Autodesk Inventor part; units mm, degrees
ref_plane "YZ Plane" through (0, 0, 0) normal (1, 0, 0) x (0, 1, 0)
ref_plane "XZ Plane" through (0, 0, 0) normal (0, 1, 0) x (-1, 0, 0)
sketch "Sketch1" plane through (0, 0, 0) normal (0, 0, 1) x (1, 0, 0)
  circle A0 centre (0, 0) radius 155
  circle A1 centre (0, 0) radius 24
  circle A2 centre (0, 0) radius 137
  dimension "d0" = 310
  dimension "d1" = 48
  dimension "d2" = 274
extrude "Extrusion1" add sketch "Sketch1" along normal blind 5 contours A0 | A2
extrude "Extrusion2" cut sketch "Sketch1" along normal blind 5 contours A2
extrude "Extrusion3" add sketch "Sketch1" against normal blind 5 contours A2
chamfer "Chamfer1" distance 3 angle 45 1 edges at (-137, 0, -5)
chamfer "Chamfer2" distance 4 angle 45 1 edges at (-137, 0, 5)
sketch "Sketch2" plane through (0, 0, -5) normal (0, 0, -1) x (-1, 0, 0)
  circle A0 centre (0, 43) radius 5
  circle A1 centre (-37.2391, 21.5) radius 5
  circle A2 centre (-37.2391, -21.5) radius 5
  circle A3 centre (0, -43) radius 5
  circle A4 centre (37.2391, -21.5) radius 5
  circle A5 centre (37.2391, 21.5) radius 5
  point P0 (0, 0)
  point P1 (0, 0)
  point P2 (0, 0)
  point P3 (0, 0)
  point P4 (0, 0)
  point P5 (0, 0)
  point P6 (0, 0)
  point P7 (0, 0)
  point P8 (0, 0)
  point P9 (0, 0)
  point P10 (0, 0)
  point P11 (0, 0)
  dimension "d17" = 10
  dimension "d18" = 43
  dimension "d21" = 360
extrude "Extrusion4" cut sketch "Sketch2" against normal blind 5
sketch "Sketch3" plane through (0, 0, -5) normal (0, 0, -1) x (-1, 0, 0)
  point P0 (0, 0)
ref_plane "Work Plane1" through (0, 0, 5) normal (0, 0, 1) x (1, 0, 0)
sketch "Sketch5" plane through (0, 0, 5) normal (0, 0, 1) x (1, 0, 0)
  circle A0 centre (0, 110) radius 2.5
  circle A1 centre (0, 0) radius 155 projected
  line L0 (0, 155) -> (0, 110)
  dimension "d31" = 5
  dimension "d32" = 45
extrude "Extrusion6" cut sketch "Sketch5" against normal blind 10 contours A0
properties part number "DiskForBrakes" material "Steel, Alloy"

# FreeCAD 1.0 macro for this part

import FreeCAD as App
import Part
import Sketcher
from FreeCAD import Vector


def edges_at(feature, points):
    """Names of the edges that pass closest to the given points."""
    edges = feature.Shape.Edges
    near = lambda p: min(range(len(edges)), key=lambda i: edges[i].distToShape(Part.Vertex(*p))[0])
    return sorted({f"Edge{near(p) + 1}" for p in points})

doc = App.newDocument("Part")
body = doc.addObject("PartDesign::Body", "Body")
body.AllowCompound = True

# Sketch on XY plane
sketch1 = body.newObject("Sketcher::SketchObject", "Sketch")
sketch1.AttachmentSupport = (doc.getObject("XY_Plane"), [""])
sketch1.MapMode = "FlatFace"
sketch1.addGeometry([
    Part.Circle(Vector(0, 0, 0), Vector(0, 0, 1), 155),
    Part.Circle(Vector(0, 0, 0), Vector(0, 0, 1), 24),
], False)
sketch1.addConstraint([
    Sketcher.Constraint("Coincident", 0, 3, -1, 1),
    Sketcher.Constraint("Coincident", 1, 3, -1, 1),
    Sketcher.Constraint("Diameter", 0, 310.0),
    Sketcher.Constraint("Diameter", 1, 48.0),
])
pad1 = body.newObject("PartDesign::Pad", "Pad")
pad1.Profile = sketch1
pad1.Length = 5

# Sketch on XY plane
sketch2 = body.newObject("Sketcher::SketchObject", "Sketch001")
sketch2.AttachmentSupport = (doc.getObject("XY_Plane"), [""])
sketch2.MapMode = "FlatFace"
sketch2.addGeometry([
    Part.Circle(Vector(0, 0, 0), Vector(0, 0, 1), 137),
    Part.Circle(Vector(0, 0, 0), Vector(0, 0, 1), 24),
], False)
sketch2.addConstraint([
    Sketcher.Constraint("Coincident", 0, 3, -1, 1),
    Sketcher.Constraint("Coincident", 1, 3, -1, 1),
    Sketcher.Constraint("Diameter", 0, 274.0),
    Sketcher.Constraint("Diameter", 1, 48.0),
])
pocket1 = body.newObject("PartDesign::Pocket", "Pocket")
pocket1.Profile = sketch2
pocket1.Length = 5
pocket1.Reversed = True

# Sketch on XY plane
sketch3 = body.newObject("Sketcher::SketchObject", "Sketch002")
sketch3.AttachmentSupport = (doc.getObject("XY_Plane"), [""])
sketch3.MapMode = "FlatFace"
sketch3.addGeometry([
    Part.Circle(Vector(0, 0, 0), Vector(0, 0, 1), 137),
    Part.Circle(Vector(0, 0, 0), Vector(0, 0, 1), 24),
], False)
sketch3.addConstraint([
    Sketcher.Constraint("Coincident", 0, 3, -1, 1),
    Sketcher.Constraint("Coincident", 1, 3, -1, 1),
    Sketcher.Constraint("Diameter", 0, 274.0),
    Sketcher.Constraint("Diameter", 1, 48.0),
])
pad2 = body.newObject("PartDesign::Pad", "Pad001")
pad2.Profile = sketch3
pad2.Length = 5
pad2.Reversed = True
doc.recompute()

chamfer = body.newObject("PartDesign::Chamfer", "Chamfer")
chamfer.Base = (pad2, edges_at(pad2, [(-137, 0, -5)]))
chamfer.Size = 3
doc.recompute()

chamfer2 = body.newObject("PartDesign::Chamfer", "Chamfer001")
chamfer2.Base = (chamfer, edges_at(chamfer, [(-137, 0, 5)]))
chamfer2.Size = 4

# Sketch on XY plane
sketch4 = body.newObject("Sketcher::SketchObject", "Sketch003")
sketch4.AttachmentSupport = (doc.getObject("XY_Plane"), [""])
sketch4.MapMode = "FlatFace"
sketch4.AttachmentOffset = App.Placement(Vector(0, 0, -5), App.Rotation())
sketch4.addGeometry([
    Part.Circle(Vector(0, 43, 0), Vector(0, 0, 1), 5),  # 0
    Part.Circle(Vector(37, 22, 0), Vector(0, 0, 1), 5),  # 1
    Part.Circle(Vector(37, -22, 0), Vector(0, 0, 1), 5),  # 2
    Part.Circle(Vector(0, -43, 0), Vector(0, 0, 1), 5),  # 3
    Part.Circle(Vector(-37, -22, 0), Vector(0, 0, 1), 5),  # 4
    Part.Circle(Vector(-37, 22, 0), Vector(0, 0, 1), 5),  # 5
], False)
sketch4.addConstraint([
    Sketcher.Constraint("Equal", 0, 1),
    Sketcher.Constraint("Equal", 1, 2),
    Sketcher.Constraint("Equal", 2, 3),
    Sketcher.Constraint("Equal", 3, 4),
    Sketcher.Constraint("Equal", 4, 5),
    Sketcher.Constraint("Symmetric", 0, 3, 3, 3, -1, 1),
    Sketcher.Constraint("Symmetric", 1, 3, 4, 3, -1, 1),
    Sketcher.Constraint("Symmetric", 2, 3, 5, 3, -1, 1),
    Sketcher.Constraint("Symmetric", 2, 3, 4, 3, -2),
    Sketcher.Constraint("PointOnObject", 0, 3, -2),
    Sketcher.Constraint("Diameter", 0, 10.0),
    Sketcher.Constraint("DistanceY", -1, 1, 0, 3, 43.0),
    Sketcher.Constraint("DistanceY", 2, 3, 1, 3, 43.0),
    Sketcher.Constraint("DistanceX", -1, 1, 1, 3, 37.239),
])
pocket2 = body.newObject("PartDesign::Pocket", "Pocket001")
pocket2.Profile = sketch4
pocket2.Length = 5
pocket2.Reversed = True

# Sketch on XY plane
sketch5 = body.newObject("Sketcher::SketchObject", "Sketch004")
sketch5.AttachmentSupport = (doc.getObject("XY_Plane"), [""])
sketch5.MapMode = "FlatFace"
sketch5.AttachmentOffset = App.Placement(Vector(0, 0, 5), App.Rotation())
sketch5.addGeometry(Part.Circle(Vector(0, 110, 0), Vector(0, 0, 1), 2.5), False)
sketch5.addConstraint([
    Sketcher.Constraint("PointOnObject", 0, 3, -2),
    Sketcher.Constraint("Diameter", 0, 5.0),
    Sketcher.Constraint("DistanceY", -1, 1, 0, 3, 110.0),
])
pocket3 = body.newObject("PartDesign::Pocket", "Pocket002")
pocket3.Profile = sketch5
pocket3.Length = 10

doc.recompute()
